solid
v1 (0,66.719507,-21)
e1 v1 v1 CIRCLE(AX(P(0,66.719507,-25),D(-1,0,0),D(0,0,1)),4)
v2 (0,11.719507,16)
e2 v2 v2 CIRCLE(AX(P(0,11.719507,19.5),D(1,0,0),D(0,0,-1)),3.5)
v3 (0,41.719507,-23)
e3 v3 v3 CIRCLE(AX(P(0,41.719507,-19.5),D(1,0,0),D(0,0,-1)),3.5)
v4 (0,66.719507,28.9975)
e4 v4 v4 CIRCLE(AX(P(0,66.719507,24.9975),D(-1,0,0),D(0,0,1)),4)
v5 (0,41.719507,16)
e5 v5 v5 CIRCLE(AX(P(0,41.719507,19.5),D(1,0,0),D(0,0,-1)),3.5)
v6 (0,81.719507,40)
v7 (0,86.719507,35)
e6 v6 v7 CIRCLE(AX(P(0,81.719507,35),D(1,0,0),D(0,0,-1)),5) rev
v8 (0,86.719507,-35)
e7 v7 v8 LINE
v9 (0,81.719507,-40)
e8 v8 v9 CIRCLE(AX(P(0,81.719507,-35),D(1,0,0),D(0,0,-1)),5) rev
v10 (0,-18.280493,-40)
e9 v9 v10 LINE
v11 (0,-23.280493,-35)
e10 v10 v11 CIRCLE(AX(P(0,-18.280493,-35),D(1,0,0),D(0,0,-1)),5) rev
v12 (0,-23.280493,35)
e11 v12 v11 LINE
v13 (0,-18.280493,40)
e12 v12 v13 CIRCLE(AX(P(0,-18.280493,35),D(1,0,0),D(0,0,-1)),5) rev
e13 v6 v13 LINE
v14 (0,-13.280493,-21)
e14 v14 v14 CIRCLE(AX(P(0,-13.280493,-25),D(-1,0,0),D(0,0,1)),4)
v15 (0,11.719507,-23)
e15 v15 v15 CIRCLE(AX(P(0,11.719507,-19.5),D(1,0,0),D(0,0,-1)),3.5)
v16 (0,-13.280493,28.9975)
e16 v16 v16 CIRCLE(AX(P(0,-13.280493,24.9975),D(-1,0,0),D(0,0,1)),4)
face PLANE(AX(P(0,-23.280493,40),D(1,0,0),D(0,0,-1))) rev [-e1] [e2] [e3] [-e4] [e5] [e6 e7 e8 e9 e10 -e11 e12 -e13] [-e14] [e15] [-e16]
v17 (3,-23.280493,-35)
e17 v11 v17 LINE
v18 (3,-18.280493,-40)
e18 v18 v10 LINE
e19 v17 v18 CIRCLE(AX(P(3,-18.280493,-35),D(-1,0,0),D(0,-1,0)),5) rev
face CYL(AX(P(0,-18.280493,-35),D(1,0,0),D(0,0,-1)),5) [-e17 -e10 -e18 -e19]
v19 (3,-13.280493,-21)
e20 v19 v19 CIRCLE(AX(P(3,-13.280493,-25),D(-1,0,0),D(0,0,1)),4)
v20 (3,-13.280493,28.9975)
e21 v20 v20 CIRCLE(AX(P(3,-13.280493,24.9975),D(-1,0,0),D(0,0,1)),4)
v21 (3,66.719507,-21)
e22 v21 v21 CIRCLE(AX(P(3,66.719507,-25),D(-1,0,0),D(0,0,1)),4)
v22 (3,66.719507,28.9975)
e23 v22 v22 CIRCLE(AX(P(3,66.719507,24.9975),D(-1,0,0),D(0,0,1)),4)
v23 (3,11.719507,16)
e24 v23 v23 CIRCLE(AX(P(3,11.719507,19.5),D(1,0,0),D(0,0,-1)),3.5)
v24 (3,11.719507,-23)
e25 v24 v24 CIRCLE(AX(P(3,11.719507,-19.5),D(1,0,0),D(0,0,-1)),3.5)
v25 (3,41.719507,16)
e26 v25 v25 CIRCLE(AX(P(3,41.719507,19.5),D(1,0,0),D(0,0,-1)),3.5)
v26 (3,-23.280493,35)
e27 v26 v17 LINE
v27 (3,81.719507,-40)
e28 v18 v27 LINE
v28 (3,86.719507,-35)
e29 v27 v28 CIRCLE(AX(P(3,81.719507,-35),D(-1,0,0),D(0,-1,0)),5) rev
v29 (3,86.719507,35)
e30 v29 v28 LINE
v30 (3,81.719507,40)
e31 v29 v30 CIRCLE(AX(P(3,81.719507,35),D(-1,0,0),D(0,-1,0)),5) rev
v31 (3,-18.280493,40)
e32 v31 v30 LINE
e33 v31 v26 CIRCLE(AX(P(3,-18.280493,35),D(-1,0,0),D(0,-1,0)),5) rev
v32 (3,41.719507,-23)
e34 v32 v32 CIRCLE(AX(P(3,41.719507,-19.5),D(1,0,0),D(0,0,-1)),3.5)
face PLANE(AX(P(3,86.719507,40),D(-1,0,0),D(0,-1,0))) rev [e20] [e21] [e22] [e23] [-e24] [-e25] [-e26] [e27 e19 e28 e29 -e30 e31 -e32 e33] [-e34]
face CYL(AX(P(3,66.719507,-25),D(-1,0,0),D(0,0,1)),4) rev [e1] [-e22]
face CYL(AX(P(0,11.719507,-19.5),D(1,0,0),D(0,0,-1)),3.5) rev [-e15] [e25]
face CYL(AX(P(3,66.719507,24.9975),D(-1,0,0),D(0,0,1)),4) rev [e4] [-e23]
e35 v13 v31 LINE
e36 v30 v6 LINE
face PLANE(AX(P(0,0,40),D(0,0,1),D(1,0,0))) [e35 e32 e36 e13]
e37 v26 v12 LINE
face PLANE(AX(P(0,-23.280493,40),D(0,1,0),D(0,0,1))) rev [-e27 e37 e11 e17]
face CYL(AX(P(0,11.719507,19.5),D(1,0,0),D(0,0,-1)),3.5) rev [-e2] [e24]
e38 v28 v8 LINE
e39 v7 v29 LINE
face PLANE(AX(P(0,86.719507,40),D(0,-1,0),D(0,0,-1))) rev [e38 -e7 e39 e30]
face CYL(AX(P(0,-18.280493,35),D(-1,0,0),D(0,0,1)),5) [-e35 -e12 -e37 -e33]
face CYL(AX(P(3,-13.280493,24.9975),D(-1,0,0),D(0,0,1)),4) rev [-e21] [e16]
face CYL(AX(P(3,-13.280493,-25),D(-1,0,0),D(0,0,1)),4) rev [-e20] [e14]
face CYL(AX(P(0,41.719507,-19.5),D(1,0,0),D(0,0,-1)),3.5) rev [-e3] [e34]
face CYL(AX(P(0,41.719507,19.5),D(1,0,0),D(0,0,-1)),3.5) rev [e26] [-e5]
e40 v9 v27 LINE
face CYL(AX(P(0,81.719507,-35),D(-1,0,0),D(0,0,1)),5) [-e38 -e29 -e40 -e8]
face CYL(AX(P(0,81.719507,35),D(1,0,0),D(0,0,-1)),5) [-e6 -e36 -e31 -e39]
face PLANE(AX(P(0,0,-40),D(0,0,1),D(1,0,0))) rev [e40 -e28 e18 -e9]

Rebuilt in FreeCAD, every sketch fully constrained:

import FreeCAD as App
import Part
import Sketcher
from FreeCAD import Vector


def edges_at(feature, points):
    """Names of the edges that pass closest to the given points."""
    edges = feature.Shape.Edges
    near = lambda p: min(range(len(edges)), key=lambda i: edges[i].distToShape(Part.Vertex(*p))[0])
    return sorted({f"Edge{near(p) + 1}" for p in points})

doc = App.newDocument("Part")
body = doc.addObject("PartDesign::Body", "Body")

sketch1 = body.newObject("Sketcher::SketchObject", "Sketch")
sketch1.AttachmentSupport = (doc.getObject("XY_Plane"), [""])
sketch1.MapMode = "FlatFace"
sketch1.addGeometry(Part.LineSegment(Vector(0, 86.7, 0), Vector(0, -23.3, 0)), False)
sketch1.addGeometry(Part.LineSegment(Vector(0, -23.3, 0), Vector(3, -23.3, 0)), False)
sketch1.addGeometry(Part.LineSegment(Vector(3, -23.3, 0), Vector(3, 86.7, 0)), False)
sketch1.addGeometry(Part.LineSegment(Vector(3, 86.7, 0), Vector(0, 86.7, 0)), False)
sketch1.addConstraint(Sketcher.Constraint("Coincident", 0, 2, 1, 1))
sketch1.addConstraint(Sketcher.Constraint("Coincident", 1, 2, 2, 1))
sketch1.addConstraint(Sketcher.Constraint("Coincident", 2, 2, 3, 1))
sketch1.addConstraint(Sketcher.Constraint("Coincident", 3, 2, 0, 1))
sketch1.addConstraint(Sketcher.Constraint("Vertical", 0))
sketch1.addConstraint(Sketcher.Constraint("Horizontal", 1))
sketch1.addConstraint(Sketcher.Constraint("Vertical", 2))
sketch1.addConstraint(Sketcher.Constraint("Horizontal", 3))
sketch1.addConstraint(Sketcher.Constraint("PointOnObject", 0, 2, -2))
sketch1.addConstraint(Sketcher.Constraint("DistanceX", 1, 1, 1, 2, 3.0))
sketch1.addConstraint(Sketcher.Constraint("DistanceY", 0, 2, 0, 1, 110.0))
sketch1.addConstraint(Sketcher.Constraint("DistanceY", 0, 2, -1, 1, 23.280493))
pad1 = body.newObject("PartDesign::Pad", "Pad")
pad1.Profile = sketch1
pad1.Length = 80
pad1.Midplane = True

sketch2 = body.newObject("Sketcher::SketchObject", "Sketch001")
sketch2.AttachmentSupport = (doc.getObject("YZ_Plane"), [""])
sketch2.MapMode = "FlatFace"
sketch2.AttachmentOffset = App.Placement(Vector(0, 0, 3), App.Rotation())
sketch2.addGeometry(Part.Circle(Vector(11.7, 19.5, 0), Vector(0, 0, 1), 3.5), False)
sketch2.addGeometry(Part.Circle(Vector(11.7, -19.5, 0), Vector(0, 0, 1), 3.5), False)
sketch2.addGeometry(Part.Circle(Vector(41.7, -19.5, 0), Vector(0, 0, 1), 3.5), False)
sketch2.addGeometry(Part.Circle(Vector(41.7, 19.5, 0), Vector(0, 0, 1), 3.5), False)
sketch2.addConstraint(Sketcher.Constraint("Equal", 0, 1))
sketch2.addConstraint(Sketcher.Constraint("Equal", 1, 2))
sketch2.addConstraint(Sketcher.Constraint("Equal", 2, 3))
sketch2.addConstraint(Sketcher.Constraint("Symmetric", 0, 3, 1, 3, -1))
sketch2.addConstraint(Sketcher.Constraint("Symmetric", 2, 3, 3, 3, -1))
sketch2.addConstraint(Sketcher.Constraint("Horizontal", 1, 3, 2, 3))
sketch2.addConstraint(Sketcher.Constraint("Diameter", 0, 7.0))
sketch2.addConstraint(Sketcher.Constraint("DistanceY", 1, 3, 0, 3, 39.0))
sketch2.addConstraint(Sketcher.Constraint("DistanceX", 1, 3, 2, 3, 30.0))
sketch2.addConstraint(Sketcher.Constraint("DistanceX", -1, 1, 0, 3, 11.719507))
pocket1 = body.newObject("PartDesign::Pocket", "Pocket")
pocket1.Profile = sketch2
pocket1.Type = "ThroughAll"

sketch3 = body.newObject("Sketcher::SketchObject", "Sketch002")
sketch3.AttachmentSupport = (doc.getObject("YZ_Plane"), [""])
sketch3.MapMode = "FlatFace"
sketch3.addGeometry(Part.Circle(Vector(66.7, -25, 0), Vector(0, 0, 1), 4), False)
sketch3.addGeometry(Part.Circle(Vector(66.7, 25, 0), Vector(0, 0, 1), 4), False)
sketch3.addGeometry(Part.Circle(Vector(-13.3, -25, 0), Vector(0, 0, 1), 4), False)
sketch3.addGeometry(Part.Circle(Vector(-13.3, 25, 0), Vector(0, 0, 1), 4), False)
sketch3.addConstraint(Sketcher.Constraint("Equal", 0, 1))
sketch3.addConstraint(Sketcher.Constraint("Equal", 1, 2))
sketch3.addConstraint(Sketcher.Constraint("Equal", 2, 3))
sketch3.addConstraint(Sketcher.Constraint("Horizontal", 0, 3, 2, 3))
sketch3.addConstraint(Sketcher.Constraint("Horizontal", 1, 3, 3, 3))
sketch3.addConstraint(Sketcher.Constraint("Vertical", 0, 3, 1, 3))
sketch3.addConstraint(Sketcher.Constraint("Vertical", 2, 3, 3, 3))
sketch3.addConstraint(Sketcher.Constraint("Diameter", 0, 8.0))
sketch3.addConstraint(Sketcher.Constraint("DistanceY", 0, 3, -1, 1, 25.0))
sketch3.addConstraint(Sketcher.Constraint("DistanceX", 2, 3, 0, 3, 80.0))
sketch3.addConstraint(Sketcher.Constraint("DistanceY", -1, 1, 1, 3, 24.9975))
sketch3.addConstraint(Sketcher.Constraint("DistanceX", -1, 1, 0, 3, 66.719507))
pocket2 = body.newObject("PartDesign::Pocket", "Pocket001")
pocket2.Profile = sketch3
pocket2.Type = "ThroughAll"
pocket2.Reversed = True
doc.recompute()

fillet = body.newObject("PartDesign::Fillet", "Fillet")
fillet.Base = (pocket2, edges_at(pocket2, [
    (1.5, 86.72, 40),
    (1.5, -23.28, 40),
    (1.5, 86.72, -40),
    (1.5, -23.28, -40),
]))
fillet.Radius = 5

doc.recompute()
